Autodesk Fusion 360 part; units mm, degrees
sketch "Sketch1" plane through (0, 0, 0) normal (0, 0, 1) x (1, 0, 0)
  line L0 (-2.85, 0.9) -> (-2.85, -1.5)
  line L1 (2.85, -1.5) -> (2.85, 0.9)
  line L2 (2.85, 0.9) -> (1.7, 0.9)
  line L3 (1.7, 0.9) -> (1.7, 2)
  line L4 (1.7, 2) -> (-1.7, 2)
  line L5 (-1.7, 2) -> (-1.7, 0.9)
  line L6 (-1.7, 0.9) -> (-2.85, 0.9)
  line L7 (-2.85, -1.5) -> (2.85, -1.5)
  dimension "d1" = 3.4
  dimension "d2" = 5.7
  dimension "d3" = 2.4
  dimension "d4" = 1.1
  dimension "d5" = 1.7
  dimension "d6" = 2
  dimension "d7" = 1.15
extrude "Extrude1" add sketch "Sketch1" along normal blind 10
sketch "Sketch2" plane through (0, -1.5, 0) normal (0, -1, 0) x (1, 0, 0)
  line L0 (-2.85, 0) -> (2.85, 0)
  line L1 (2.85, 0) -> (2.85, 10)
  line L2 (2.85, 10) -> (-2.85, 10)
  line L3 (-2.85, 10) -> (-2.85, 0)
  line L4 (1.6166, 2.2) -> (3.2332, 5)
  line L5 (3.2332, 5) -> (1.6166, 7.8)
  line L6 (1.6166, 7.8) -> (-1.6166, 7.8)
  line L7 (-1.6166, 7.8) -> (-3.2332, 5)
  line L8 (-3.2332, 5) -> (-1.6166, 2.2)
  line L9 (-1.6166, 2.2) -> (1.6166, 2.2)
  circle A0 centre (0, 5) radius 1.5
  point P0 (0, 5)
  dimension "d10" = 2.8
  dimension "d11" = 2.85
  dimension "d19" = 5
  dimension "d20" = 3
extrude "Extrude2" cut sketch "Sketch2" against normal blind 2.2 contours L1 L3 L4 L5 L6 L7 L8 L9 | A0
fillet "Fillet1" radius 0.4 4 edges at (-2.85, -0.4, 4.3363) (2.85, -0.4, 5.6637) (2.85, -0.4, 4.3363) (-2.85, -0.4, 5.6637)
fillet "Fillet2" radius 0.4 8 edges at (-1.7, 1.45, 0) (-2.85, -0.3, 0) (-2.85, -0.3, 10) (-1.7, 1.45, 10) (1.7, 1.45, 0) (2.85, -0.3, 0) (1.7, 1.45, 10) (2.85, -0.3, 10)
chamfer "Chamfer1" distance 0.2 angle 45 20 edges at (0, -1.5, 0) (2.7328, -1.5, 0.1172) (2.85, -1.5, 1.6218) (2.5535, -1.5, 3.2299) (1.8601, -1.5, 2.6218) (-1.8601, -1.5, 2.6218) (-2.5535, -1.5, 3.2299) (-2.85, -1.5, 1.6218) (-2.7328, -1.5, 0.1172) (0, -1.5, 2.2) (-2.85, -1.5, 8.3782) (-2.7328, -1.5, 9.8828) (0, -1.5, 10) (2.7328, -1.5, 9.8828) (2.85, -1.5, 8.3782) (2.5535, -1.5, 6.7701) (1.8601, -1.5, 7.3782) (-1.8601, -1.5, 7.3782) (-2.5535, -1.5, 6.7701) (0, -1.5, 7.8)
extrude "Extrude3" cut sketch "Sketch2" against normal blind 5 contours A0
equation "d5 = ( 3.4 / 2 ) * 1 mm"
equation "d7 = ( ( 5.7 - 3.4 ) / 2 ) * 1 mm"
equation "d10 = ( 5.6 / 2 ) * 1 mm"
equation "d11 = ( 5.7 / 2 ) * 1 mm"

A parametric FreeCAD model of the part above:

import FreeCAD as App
import Part
import Sketcher
Q = App.Units.Quantity


def edges_at(feature, points):
    """Names of the edges that pass closest to the given points."""
    edges = feature.Shape.Edges
    near = lambda p: min(range(len(edges)), key=lambda i: edges[i].distToShape(Part.Vertex(*p))[0])
    return sorted({f"Edge{near(p) + 1}" for p in points})


def add_polygon(sketch, points):
    """Adds a closed chain of lines whose ends are joined by coincident constraints."""
    first, n = sketch.GeometryCount, len(points)
    for a, b in zip(points, points[1:] + points[:1]):
        sketch.addGeometry(Part.LineSegment(App.Vector(*a, 0), App.Vector(*b, 0)), False)
    for i in range(n):
        sketch.addConstraint(Sketcher.Constraint("Coincident", first + i, 2, first + (i + 1) % n, 1))

doc = App.newDocument("Part")
body = doc.addObject("PartDesign::Body", "Body")

# Sketch on XY plane
sketch1 = body.newObject("Sketcher::SketchObject", "Sketch")
sketch1.AttachmentSupport = (doc.getObject("XY_Plane"), [""])
sketch1.MapMode = "FlatFace"
add_polygon(sketch1, [(-1.7, 0.9), (-2.9, 0.9), (-2.9, -1.5), (2.9, -1.5), (2.9, 0.9), (1.7, 0.9), (1.7, 2), (-1.7, 2)])  # lines 0-7
sketch1.addConstraint([
    Sketcher.Constraint("Horizontal", 0),
    Sketcher.Constraint("Vertical", 1),
    Sketcher.Constraint("Horizontal", 2),
    Sketcher.Constraint("Vertical", 3),
    Sketcher.Constraint("Horizontal", 4),
    Sketcher.Constraint("Vertical", 5),
    Sketcher.Constraint("Horizontal", 6),
    Sketcher.Constraint("Vertical", 7),
    Sketcher.Constraint("Symmetric", 0, 2, 3, 2, -2),
    Sketcher.Constraint("Equal", 0, 4),
    Sketcher.Constraint("DistanceX", 2, 1, 2, 2, Q("5.7 mm")),
    Sketcher.Constraint("DistanceX", 6, 2, 6, 1, Q("3.4 mm")),
    Sketcher.Constraint("DistanceY", 1, 2, 1, 1, Q("2.4 mm")),
    Sketcher.Constraint("DistanceY", 5, 1, 5, 2, Q("1.1 mm")),
    Sketcher.Constraint("DistanceY", -1, 1, 5, 2, Q("2 mm")),
])
pad1 = body.newObject("PartDesign::Pad", "Pad")
pad1.Profile = sketch1
pad1.Length = 10

# Sketch on XZ plane
sketch2 = body.newObject("Sketcher::SketchObject", "Sketch001")
sketch2.AttachmentSupport = (doc.getObject("XZ_Plane"), [""])
sketch2.MapMode = "FlatFace"
sketch2.AttachmentOffset = App.Placement(App.Vector(0, 0, 1.5), App.Rotation())
add_polygon(sketch2, [(-2.9, 5.7), (-2.9, 4.3), (-1.6, 2.2), (1.6, 2.2), (2.9, 4.3), (2.9, 5.7), (1.6, 7.8), (-1.6, 7.8)])  # lines 0-7
sketch2.addConstraint([
    Sketcher.Constraint("Vertical", 0),
    Sketcher.Constraint("Horizontal", 2),
    Sketcher.Constraint("Vertical", 4),
    Sketcher.Constraint("Horizontal", 6),
    Sketcher.Constraint("Symmetric", 0, 2, 3, 2, -2),
    Sketcher.Constraint("Parallel", 1, 5),
    Sketcher.Constraint("Parallel", 3, 7),
    Sketcher.Constraint("Horizontal", 4, 2, 7, 2),
    Sketcher.Constraint("Vertical", 2, 2, 5, 2),
    Sketcher.Constraint("Vertical", 1, 2, 6, 2),
    Sketcher.Constraint("DistanceX", 0, 2, -1, 1, Q("2.85 mm")),
    Sketcher.Constraint("Angle", 1, Q("-59.9997 deg")),
    Sketcher.Constraint("DistanceY", -1, 1, 1, 2, Q("2.2 mm")),
    Sketcher.Constraint("DistanceY", -1, 1, 5, 2, Q("7.8 mm")),
    Sketcher.Constraint("DistanceX", 2, 1, 2, 2, Q("3.2332 mm")),
])
pocket1 = body.newObject("PartDesign::Pocket", "Pocket")
pocket1.Profile = sketch2
pocket1.Length = 2.2
doc.recompute()

fillet = body.newObject("PartDesign::Fillet", "Fillet")
fillet.Base = (pocket1, edges_at(pocket1, [
    (-2.85, -0.4, 4.336),
    (2.85, -0.4, 5.664),
    (2.85, -0.4, 4.336),
    (-2.85, -0.4, 5.664),
]))
fillet.Radius = 0.4
doc.recompute()

fillet2 = body.newObject("PartDesign::Fillet", "Fillet001")
fillet2.Base = (fillet, edges_at(fillet, [
    (-1.7, 1.45, 0),
    (-2.85, -0.3, 0),
    (-2.85, -0.3, 10),
    (-1.7, 1.45, 10),
    (1.7, 1.45, 0),
    (2.85, -0.3, 0),
    (1.7, 1.45, 10),
    (2.85, -0.3, 10),
]))
fillet2.Radius = 0.4
doc.recompute()

chamfer = body.newObject("PartDesign::Chamfer", "Chamfer")
chamfer.Base = (fillet2, edges_at(fillet2, [
    (0, -1.5, 0),
    (2.733, -1.5, 0.117),
    (2.85, -1.5, 1.622),
    (2.554, -1.5, 3.23),
    (1.86, -1.5, 2.622),
    (-1.86, -1.5, 2.622),
    (-2.554, -1.5, 3.23),
    (-2.85, -1.5, 1.622),
    (-2.733, -1.5, 0.117),
    (0, -1.5, 2.2),
    (-2.85, -1.5, 8.378),
    (-2.733, -1.5, 9.883),
    (0, -1.5, 10),
    (2.733, -1.5, 9.883),
    (2.85, -1.5, 8.378),
    (2.554, -1.5, 6.77),
    (1.86, -1.5, 7.378),
    (-1.86, -1.5, 7.378),
    (-2.554, -1.5, 6.77),
    (0, -1.5, 7.8),
]))
chamfer.Size = 0.2

# Sketch on XZ plane
sketch3 = body.newObject("Sketcher::SketchObject", "Sketch002")
sketch3.AttachmentSupport = (doc.getObject("XZ_Plane"), [""])
sketch3.MapMode = "FlatFace"
sketch3.AttachmentOffset = App.Placement(App.Vector(0, 0, 1.5), App.Rotation())
sketch3.addGeometry(Part.Circle(App.Vector(0, 5, 0), App.Vector(0, 0, 1), 1.5), False)
sketch3.addConstraint([
    Sketcher.Constraint("PointOnObject", 0, 3, -2),
    Sketcher.Constraint("Diameter", 0, Q("3 mm")),
    Sketcher.Constraint("DistanceY", -1, 1, 0, 3, Q("5 mm")),
])
pocket2 = body.newObject("PartDesign::Pocket", "Pocket001")
pocket2.Profile = sketch3
pocket2.Length = 5

doc.recompute()
